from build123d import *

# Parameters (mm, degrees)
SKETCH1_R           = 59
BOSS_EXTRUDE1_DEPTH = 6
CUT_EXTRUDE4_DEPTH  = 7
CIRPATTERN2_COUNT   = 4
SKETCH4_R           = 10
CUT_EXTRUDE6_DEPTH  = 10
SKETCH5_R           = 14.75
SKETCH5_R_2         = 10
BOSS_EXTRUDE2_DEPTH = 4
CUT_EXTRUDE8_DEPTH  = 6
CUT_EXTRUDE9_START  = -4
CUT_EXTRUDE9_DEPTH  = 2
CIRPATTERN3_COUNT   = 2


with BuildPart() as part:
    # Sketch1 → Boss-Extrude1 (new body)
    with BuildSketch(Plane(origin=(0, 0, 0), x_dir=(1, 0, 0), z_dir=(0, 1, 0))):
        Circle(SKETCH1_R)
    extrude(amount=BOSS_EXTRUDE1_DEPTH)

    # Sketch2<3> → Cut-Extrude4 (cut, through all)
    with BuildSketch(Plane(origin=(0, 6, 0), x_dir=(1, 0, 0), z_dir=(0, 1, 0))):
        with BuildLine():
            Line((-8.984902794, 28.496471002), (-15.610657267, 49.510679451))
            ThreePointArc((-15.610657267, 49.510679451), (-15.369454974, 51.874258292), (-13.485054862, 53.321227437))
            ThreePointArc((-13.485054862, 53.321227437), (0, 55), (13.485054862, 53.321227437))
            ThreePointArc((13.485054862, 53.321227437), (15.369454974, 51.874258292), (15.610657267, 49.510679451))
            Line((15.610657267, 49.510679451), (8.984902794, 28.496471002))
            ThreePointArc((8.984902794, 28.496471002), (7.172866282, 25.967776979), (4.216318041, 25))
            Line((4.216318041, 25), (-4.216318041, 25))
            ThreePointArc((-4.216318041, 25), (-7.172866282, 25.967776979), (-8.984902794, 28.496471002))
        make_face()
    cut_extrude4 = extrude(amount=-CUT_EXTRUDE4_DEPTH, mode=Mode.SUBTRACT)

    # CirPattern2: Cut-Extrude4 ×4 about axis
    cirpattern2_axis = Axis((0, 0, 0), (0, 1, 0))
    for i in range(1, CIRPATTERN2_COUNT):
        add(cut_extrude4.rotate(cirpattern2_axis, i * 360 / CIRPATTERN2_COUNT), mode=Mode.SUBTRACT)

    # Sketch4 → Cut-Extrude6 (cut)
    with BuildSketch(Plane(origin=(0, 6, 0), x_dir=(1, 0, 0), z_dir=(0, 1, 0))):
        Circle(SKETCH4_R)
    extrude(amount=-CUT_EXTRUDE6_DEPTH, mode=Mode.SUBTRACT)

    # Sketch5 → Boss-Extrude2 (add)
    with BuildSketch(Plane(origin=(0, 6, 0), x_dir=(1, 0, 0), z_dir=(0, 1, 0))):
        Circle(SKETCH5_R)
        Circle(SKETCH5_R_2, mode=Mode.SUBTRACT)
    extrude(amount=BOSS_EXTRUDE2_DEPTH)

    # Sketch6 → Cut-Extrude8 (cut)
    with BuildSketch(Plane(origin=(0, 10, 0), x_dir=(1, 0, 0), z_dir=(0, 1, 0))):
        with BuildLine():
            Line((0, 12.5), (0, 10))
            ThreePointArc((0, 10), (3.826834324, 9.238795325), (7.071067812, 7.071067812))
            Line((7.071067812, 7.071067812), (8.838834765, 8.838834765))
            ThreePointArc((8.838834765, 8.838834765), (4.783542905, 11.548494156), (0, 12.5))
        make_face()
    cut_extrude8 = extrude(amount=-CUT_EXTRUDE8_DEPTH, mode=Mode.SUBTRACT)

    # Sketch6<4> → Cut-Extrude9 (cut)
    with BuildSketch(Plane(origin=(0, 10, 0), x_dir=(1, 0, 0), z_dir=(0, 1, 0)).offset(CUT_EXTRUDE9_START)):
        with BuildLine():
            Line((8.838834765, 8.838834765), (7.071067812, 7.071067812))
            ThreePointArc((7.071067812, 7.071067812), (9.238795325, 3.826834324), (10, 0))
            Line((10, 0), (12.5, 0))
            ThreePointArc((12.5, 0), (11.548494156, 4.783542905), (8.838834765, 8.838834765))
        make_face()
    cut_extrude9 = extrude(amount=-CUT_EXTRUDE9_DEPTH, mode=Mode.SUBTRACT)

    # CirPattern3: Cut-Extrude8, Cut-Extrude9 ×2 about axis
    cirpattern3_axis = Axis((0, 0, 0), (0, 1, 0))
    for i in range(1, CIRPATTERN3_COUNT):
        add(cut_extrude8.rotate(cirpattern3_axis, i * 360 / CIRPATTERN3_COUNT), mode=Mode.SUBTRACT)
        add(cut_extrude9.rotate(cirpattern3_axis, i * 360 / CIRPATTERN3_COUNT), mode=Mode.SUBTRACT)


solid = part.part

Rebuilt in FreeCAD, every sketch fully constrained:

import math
import FreeCAD as App
import Part
import Sketcher

V = App.Vector
Q = App.Units.Quantity

doc = App.newDocument("Part")
params = doc.addObject("Spreadsheet::Sheet", "Params")
for row, (alias, value) in enumerate([
    ("sketch1_diameter", "118 mm"),
    ("pad1_length", "6 mm"),
    ("sketch2_radius", "5 mm"),
    ("sketch2_radius2", "3 mm"),
    ("sketch2_radius3", "55 mm"),
    ("sketch3_diameter", "20 mm"),
    ("pocket2_length", "10 mm"),
    ("sketch4_diameter", "20 mm"),
    ("sketch4_diameter2", "29.5 mm"),
    ("pad2_length", "4 mm"),
    ("sketch5_radius", "10 mm"),
    ("sketch5_radius2", "12.5 mm"),
    ("pocket3_length", "6 mm"),
    ("sketch6_radius", "10 mm"),
    ("sketch6_radius2", "12.5 mm"),
    ("pocket4_length", "2 mm"),
], start=1):
    params.set(f"A{row}", alias)
    params.set(f"B{row}", "=" + value)
    params.setAlias(f"B{row}", alias)

body = doc.addObject("PartDesign::Body", "Body")

# Sketch on XZ plane
sketch1 = doc.addObject("Sketcher::SketchObject", "Sketch")
body.addObject(sketch1)
sketch1.AttachmentSupport = (doc.XZ_Plane, [""])
sketch1.MapMode = "FlatFace"
sketch1.addGeometry(Part.Circle(V(0, 0, 0), V(0, 0, 1), 59), False)
sketch1.addConstraint(Sketcher.Constraint("Coincident", 0, 3, -1, 1))
sketch1.addConstraint(Sketcher.Constraint("Diameter", 0, Q("118 mm")))
sketch1.setExpression("Constraints[1]", "Params.sketch1_diameter")
pad1 = doc.addObject("PartDesign::Pad", "Pad")
body.addObject(pad1)
pad1.Profile = sketch1
pad1.setExpression("Length", "Params.pad1_length")
pad1.Reversed = True

# Sketch on XZ plane
sketch2 = doc.addObject("Sketcher::SketchObject", "Sketch001")
body.addObject(sketch2)
sketch2.AttachmentSupport = (doc.XZ_Plane, [""])
sketch2.MapMode = "FlatFace"
sketch2.AttachmentOffset = App.Placement(V(0, 0, -6), App.Rotation())
sketch2.addGeometry(Part.LineSegment(V(-15.6, -49.5, 0), V(-9, -28.5, 0)), False)
sketch2.addGeometry(Part.ArcOfCircle(Part.Circle(V(-4.2, -30, 0), V(0, 0, 1), 5), math.radians(90), math.radians(162)), False)
sketch2.addGeometry(Part.LineSegment(V(-4.2, -25, 0), V(4.2, -25, 0)), False)
sketch2.addGeometry(Part.ArcOfCircle(Part.Circle(V(4.2, -30, 0), V(0, 0, 1), 5), math.radians(18), math.radians(90)), False)
sketch2.addGeometry(Part.LineSegment(V(9, -28.5, 0), V(15.6, -49.5, 0)), False)
sketch2.addGeometry(Part.ArcOfCircle(Part.Circle(V(12.7, -50.4, 0), V(0, 0, 1), 3), math.radians(-76), math.radians(18)), False)
sketch2.addGeometry(Part.ArcOfCircle(Part.Circle(V(0, 0, 0), V(0, 0, 1), 55), math.radians(-104), math.radians(-76)), False)
sketch2.addGeometry(Part.ArcOfCircle(Part.Circle(V(-12.7, -50.4, 0), V(0, 0, 1), 3), math.radians(162), math.radians(256)), False)
sketch2.addConstraint(Sketcher.Constraint("Tangent", 0, 2, 1, 2))
sketch2.addConstraint(Sketcher.Constraint("Tangent", 1, 1, 2, 1))
sketch2.addConstraint(Sketcher.Constraint("Tangent", 2, 2, 3, 2))
sketch2.addConstraint(Sketcher.Constraint("Tangent", 3, 1, 4, 1))
sketch2.addConstraint(Sketcher.Constraint("Tangent", 4, 2, 5, 2))
sketch2.addConstraint(Sketcher.Constraint("Tangent", 5, 1, 6, 2))
sketch2.addConstraint(Sketcher.Constraint("Tangent", 6, 1, 7, 2))
sketch2.addConstraint(Sketcher.Constraint("Tangent", 7, 1, 0, 1))
sketch2.addConstraint(Sketcher.Constraint("Horizontal", 2))
sketch2.addConstraint(Sketcher.Constraint("Coincident", 6, 3, -1, 1))
sketch2.addConstraint(Sketcher.Constraint("Equal", 1, 3))
sketch2.addConstraint(Sketcher.Constraint("Equal", 5, 7))
sketch2.addConstraint(Sketcher.Constraint("Symmetric", 0, 2, 3, 1, -2))
sketch2.addConstraint(Sketcher.Constraint("Radius", 1, Q("5 mm")))
sketch2.addConstraint(Sketcher.Constraint("Radius", 5, Q("3 mm")))
sketch2.addConstraint(Sketcher.Constraint("Radius", 6, Q("55 mm")))
sketch2.addConstraint(Sketcher.Constraint("DistanceY", 1, 3, -1, 1, Q("30 mm")))
sketch2.addConstraint(Sketcher.Constraint("Angle", 0, Q("72.5 deg")))
sketch2.addConstraint(Sketcher.Constraint("Distance", 0, Q("22.03401 mm")))
sketch2.setExpression("Constraints[13]", "Params.sketch2_radius")
sketch2.setExpression("Constraints[14]", "Params.sketch2_radius2")
sketch2.setExpression("Constraints[15]", "Params.sketch2_radius3")
pocket1 = doc.addObject("PartDesign::Pocket", "Pocket")
body.addObject(pocket1)
pocket1.Profile = sketch2
pocket1.Type = "ThroughAll"
pocket1.Reversed = True
doc.recompute()

polarpattern = doc.addObject("PartDesign::PolarPattern", "PolarPattern")
body.addObject(polarpattern)
polarpattern.Originals = [pocket1]
polarpattern.Axis = (doc.Y_Axis, [""])
polarpattern.Angle = 360
polarpattern.Occurrences = 4
body.Tip = polarpattern

# Sketch on XZ plane
sketch3 = doc.addObject("Sketcher::SketchObject", "Sketch002")
body.addObject(sketch3)
sketch3.AttachmentSupport = (doc.XZ_Plane, [""])
sketch3.MapMode = "FlatFace"
sketch3.AttachmentOffset = App.Placement(V(0, 0, -6), App.Rotation())
sketch3.addGeometry(Part.Circle(V(0, 0, 0), V(0, 0, 1), 10), False)
sketch3.addConstraint(Sketcher.Constraint("Coincident", 0, 3, -1, 1))
sketch3.addConstraint(Sketcher.Constraint("Diameter", 0, Q("20 mm")))
sketch3.setExpression("Constraints[1]", "Params.sketch3_diameter")
pocket2 = doc.addObject("PartDesign::Pocket", "Pocket001")
body.addObject(pocket2)
pocket2.Profile = sketch3
pocket2.setExpression("Length", "Params.pocket2_length")
pocket2.Reversed = True

# Sketch on XZ plane
sketch4 = doc.addObject("Sketcher::SketchObject", "Sketch003")
body.addObject(sketch4)
sketch4.AttachmentSupport = (doc.XZ_Plane, [""])
sketch4.MapMode = "FlatFace"
sketch4.AttachmentOffset = App.Placement(V(0, 0, -6), App.Rotation())
sketch4.addGeometry(Part.Circle(V(0, 0, 0), V(0, 0, 1), 15), False)
sketch4.addGeometry(Part.Circle(V(0, 0, 0), V(0, 0, 1), 10), False)
sketch4.addConstraint(Sketcher.Constraint("Coincident", 0, 3, -1, 1))
sketch4.addConstraint(Sketcher.Constraint("Coincident", 1, 3, -1, 1))
sketch4.addConstraint(Sketcher.Constraint("Diameter", 1, Q("20 mm")))
sketch4.addConstraint(Sketcher.Constraint("Diameter", 0, Q("29.5 mm")))
sketch4.setExpression("Constraints[2]", "Params.sketch4_diameter")
sketch4.setExpression("Constraints[3]", "Params.sketch4_diameter2")
pad2 = doc.addObject("PartDesign::Pad", "Pad001")
body.addObject(pad2)
pad2.Profile = sketch4
pad2.setExpression("Length", "Params.pad2_length")
pad2.Reversed = True

# Sketch on XZ plane
sketch5 = doc.addObject("Sketcher::SketchObject", "Sketch004")
body.addObject(sketch5)
sketch5.AttachmentSupport = (doc.XZ_Plane, [""])
sketch5.MapMode = "FlatFace"
sketch5.AttachmentOffset = App.Placement(V(0, 0, -10), App.Rotation())
sketch5.addGeometry(Part.LineSegment(V(0, -12.5, 0), V(0, -10, 0)), False)
sketch5.addGeometry(Part.ArcOfCircle(Part.Circle(V(0, 0, 0), V(0, 0, 1), 10), math.radians(-90), math.radians(-45)), False)
sketch5.addGeometry(Part.LineSegment(V(7.1, -7.1, 0), V(8.8, -8.8, 0)), False)
sketch5.addGeometry(Part.ArcOfCircle(Part.Circle(V(0, 0, 0), V(0, 0, 1), 12.5), math.radians(-90), math.radians(-45)), False)
sketch5.addConstraint(Sketcher.Constraint("Coincident", 0, 2, 1, 1))
sketch5.addConstraint(Sketcher.Constraint("Coincident", 1, 2, 2, 1))
sketch5.addConstraint(Sketcher.Constraint("Coincident", 2, 2, 3, 2))
sketch5.addConstraint(Sketcher.Constraint("Coincident", 3, 1, 0, 1))
sketch5.addConstraint(Sketcher.Constraint("Vertical", 0))
sketch5.addConstraint(Sketcher.Constraint("Coincident", 1, 3, -1, 1))
sketch5.addConstraint(Sketcher.Constraint("Coincident", 3, 3, -1, 1))
sketch5.addConstraint(Sketcher.Constraint("PointOnObject", 0, 2, -2))
sketch5.addConstraint(Sketcher.Constraint("Radius", 1, Q("10 mm")))
sketch5.addConstraint(Sketcher.Constraint("Radius", 3, Q("12.5 mm")))
sketch5.addConstraint(Sketcher.Constraint("Angle", 2, Q("-45 deg")))
sketch5.addConstraint(Sketcher.Constraint("DistanceX", -1, 1, 1, 2, Q("7.071068 mm")))
sketch5.setExpression("Constraints[8]", "Params.sketch5_radius")
sketch5.setExpression("Constraints[9]", "Params.sketch5_radius2")
pocket3 = doc.addObject("PartDesign::Pocket", "Pocket002")
body.addObject(pocket3)
pocket3.Profile = sketch5
pocket3.setExpression("Length", "Params.pocket3_length")
pocket3.Reversed = True

# Sketch on XZ plane
sketch6 = doc.addObject("Sketcher::SketchObject", "Sketch005")
body.addObject(sketch6)
sketch6.AttachmentSupport = (doc.XZ_Plane, [""])
sketch6.MapMode = "FlatFace"
sketch6.AttachmentOffset = App.Placement(V(0, 0, -6), App.Rotation())
sketch6.addGeometry(Part.LineSegment(V(8.8, -8.8, 0), V(7.1, -7.1, 0)), False)
sketch6.addGeometry(Part.ArcOfCircle(Part.Circle(V(0, 0, 0), V(0, 0, 1), 10), math.radians(-45), math.radians(0)), False)
sketch6.addGeometry(Part.LineSegment(V(10, 0, 0), V(12.5, 0, 0)), False)
sketch6.addGeometry(Part.ArcOfCircle(Part.Circle(V(0, 0, 0), V(0, 0, 1), 12.5), math.radians(-45), math.radians(0)), False)
sketch6.addConstraint(Sketcher.Constraint("Coincident", 0, 2, 1, 1))
sketch6.addConstraint(Sketcher.Constraint("Coincident", 1, 2, 2, 1))
sketch6.addConstraint(Sketcher.Constraint("Coincident", 2, 2, 3, 2))
sketch6.addConstraint(Sketcher.Constraint("Coincident", 3, 1, 0, 1))
sketch6.addConstraint(Sketcher.Constraint("Horizontal", 2))
sketch6.addConstraint(Sketcher.Constraint("Coincident", 1, 3, -1, 1))
sketch6.addConstraint(Sketcher.Constraint("Coincident", 3, 3, -1, 1))
sketch6.addConstraint(Sketcher.Constraint("PointOnObject", 1, 2, -1))
sketch6.addConstraint(Sketcher.Constraint("Radius", 1, Q("10 mm")))
sketch6.addConstraint(Sketcher.Constraint("Radius", 3, Q("12.5 mm")))
sketch6.addConstraint(Sketcher.Constraint("Angle", 0, Q("135 deg")))
sketch6.addConstraint(Sketcher.Constraint("DistanceX", -1, 1, 0, 2, Q("7.071068 mm")))
sketch6.setExpression("Constraints[8]", "Params.sketch6_radius")
sketch6.setExpression("Constraints[9]", "Params.sketch6_radius2")
pocket4 = doc.addObject("PartDesign::Pocket", "Pocket003")
body.addObject(pocket4)
pocket4.Profile = sketch6
pocket4.setExpression("Length", "Params.pocket4_length")
pocket4.Reversed = True
doc.recompute()

polarpattern2 = doc.addObject("PartDesign::PolarPattern", "PolarPattern001")
body.addObject(polarpattern2)
polarpattern2.Originals = [pocket3, pocket4]
polarpattern2.Axis = (doc.Y_Axis, [""])
polarpattern2.Angle = 360
polarpattern2.Occurrences = 2
body.Tip = polarpattern2

doc.recompute()
